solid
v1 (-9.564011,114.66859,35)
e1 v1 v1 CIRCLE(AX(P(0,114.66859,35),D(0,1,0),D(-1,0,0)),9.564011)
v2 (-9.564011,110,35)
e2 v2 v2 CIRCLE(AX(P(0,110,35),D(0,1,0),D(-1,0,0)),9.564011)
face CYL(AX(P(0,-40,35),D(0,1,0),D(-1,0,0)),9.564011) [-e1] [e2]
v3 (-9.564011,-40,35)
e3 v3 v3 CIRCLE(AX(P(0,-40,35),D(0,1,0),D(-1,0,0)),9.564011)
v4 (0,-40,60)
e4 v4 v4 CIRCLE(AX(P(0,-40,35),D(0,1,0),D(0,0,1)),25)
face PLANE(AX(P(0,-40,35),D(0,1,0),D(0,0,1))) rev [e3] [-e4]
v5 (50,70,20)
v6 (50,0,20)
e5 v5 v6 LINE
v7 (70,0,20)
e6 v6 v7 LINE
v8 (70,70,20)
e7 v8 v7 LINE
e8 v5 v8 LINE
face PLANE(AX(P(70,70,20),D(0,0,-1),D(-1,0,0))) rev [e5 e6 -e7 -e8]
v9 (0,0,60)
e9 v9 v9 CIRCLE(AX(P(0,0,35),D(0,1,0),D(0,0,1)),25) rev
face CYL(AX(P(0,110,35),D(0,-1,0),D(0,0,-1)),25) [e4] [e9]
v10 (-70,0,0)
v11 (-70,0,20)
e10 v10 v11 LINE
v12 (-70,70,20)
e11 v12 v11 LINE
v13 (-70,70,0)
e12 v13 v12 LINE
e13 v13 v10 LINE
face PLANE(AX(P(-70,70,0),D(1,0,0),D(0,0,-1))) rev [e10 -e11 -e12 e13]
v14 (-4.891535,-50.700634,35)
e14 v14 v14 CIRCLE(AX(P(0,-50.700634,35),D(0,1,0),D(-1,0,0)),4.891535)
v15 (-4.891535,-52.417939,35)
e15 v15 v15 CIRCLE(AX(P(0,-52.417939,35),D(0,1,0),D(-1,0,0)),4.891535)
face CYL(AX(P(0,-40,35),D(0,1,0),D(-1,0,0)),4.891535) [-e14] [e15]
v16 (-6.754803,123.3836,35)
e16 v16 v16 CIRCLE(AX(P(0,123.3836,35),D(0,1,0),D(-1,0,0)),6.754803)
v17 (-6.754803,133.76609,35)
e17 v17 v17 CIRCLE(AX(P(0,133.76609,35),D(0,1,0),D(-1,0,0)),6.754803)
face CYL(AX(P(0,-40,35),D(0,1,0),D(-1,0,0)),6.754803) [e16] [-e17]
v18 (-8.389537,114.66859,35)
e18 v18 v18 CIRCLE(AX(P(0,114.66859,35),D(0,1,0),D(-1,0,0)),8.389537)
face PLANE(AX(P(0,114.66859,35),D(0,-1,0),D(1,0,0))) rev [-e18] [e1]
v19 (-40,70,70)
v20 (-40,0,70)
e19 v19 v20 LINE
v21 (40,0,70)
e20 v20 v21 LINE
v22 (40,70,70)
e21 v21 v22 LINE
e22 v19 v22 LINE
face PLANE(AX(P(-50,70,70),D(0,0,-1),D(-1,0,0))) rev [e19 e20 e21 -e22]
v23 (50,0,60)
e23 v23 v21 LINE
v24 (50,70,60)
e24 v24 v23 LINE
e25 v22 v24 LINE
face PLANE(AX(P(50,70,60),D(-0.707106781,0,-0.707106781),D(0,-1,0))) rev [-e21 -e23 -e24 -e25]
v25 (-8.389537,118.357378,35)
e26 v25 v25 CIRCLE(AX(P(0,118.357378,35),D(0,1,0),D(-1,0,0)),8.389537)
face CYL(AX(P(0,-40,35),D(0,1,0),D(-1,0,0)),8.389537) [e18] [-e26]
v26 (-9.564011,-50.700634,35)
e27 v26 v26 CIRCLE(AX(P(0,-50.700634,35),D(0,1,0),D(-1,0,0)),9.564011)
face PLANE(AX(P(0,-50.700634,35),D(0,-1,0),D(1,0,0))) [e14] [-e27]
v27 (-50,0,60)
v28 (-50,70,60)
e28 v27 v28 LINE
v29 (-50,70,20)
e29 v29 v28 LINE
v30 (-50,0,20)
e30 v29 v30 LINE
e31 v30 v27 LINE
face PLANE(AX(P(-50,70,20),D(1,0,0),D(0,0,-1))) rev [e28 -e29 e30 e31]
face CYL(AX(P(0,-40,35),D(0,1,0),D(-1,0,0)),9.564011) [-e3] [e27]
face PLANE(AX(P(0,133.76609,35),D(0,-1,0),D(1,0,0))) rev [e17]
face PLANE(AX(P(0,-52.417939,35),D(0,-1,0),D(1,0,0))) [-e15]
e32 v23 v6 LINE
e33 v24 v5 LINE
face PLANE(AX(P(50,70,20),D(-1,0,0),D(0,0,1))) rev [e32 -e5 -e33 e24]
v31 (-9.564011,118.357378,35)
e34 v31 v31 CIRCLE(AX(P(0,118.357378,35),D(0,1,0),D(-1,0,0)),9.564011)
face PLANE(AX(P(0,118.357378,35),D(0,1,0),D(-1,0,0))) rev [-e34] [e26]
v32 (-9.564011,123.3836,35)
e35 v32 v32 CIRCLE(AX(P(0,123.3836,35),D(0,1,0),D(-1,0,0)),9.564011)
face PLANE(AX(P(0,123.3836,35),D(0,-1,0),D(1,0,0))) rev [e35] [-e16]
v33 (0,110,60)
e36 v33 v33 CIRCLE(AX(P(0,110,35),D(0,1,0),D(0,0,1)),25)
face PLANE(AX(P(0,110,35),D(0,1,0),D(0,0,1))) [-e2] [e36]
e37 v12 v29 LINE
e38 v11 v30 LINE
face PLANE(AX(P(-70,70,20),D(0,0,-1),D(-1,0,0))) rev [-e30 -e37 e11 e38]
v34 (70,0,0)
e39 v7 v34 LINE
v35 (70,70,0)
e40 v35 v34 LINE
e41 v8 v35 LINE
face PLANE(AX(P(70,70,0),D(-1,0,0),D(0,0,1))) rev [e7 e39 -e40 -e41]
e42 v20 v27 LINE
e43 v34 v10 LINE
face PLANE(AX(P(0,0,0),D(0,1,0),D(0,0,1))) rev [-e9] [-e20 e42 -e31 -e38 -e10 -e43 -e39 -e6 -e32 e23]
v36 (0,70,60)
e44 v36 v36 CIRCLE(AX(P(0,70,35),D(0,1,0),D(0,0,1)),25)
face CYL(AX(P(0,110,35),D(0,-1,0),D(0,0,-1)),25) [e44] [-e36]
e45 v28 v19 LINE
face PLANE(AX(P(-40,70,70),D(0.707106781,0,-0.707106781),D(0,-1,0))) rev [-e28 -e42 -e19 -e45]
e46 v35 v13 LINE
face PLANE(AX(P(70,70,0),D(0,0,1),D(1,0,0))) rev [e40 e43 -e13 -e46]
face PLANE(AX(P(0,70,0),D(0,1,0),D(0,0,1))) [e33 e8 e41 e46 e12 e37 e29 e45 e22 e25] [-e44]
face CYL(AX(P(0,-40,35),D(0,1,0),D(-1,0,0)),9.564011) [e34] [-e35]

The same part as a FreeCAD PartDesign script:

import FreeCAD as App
import Part
import Sketcher
from FreeCAD import Vector
Q = App.Units.Quantity


def edges_at(feature, points):
    """Names of the edges that pass closest to the given points."""
    edges = feature.Shape.Edges
    near = lambda p: min(range(len(edges)), key=lambda i: edges[i].distToShape(Part.Vertex(*p))[0])
    return sorted({f"Edge{near(p) + 1}" for p in points})

doc = App.newDocument("Part")
body = doc.addObject("PartDesign::Body", "Body")

# Sketch on XZ plane
sketch1 = body.newObject("Sketcher::SketchObject", "Sketch")
sketch1.AttachmentSupport = (doc.getObject("XZ_Plane"), [""])
sketch1.MapMode = "FlatFace"
sketch1.addGeometry([
    Part.LineSegment(Vector(70, 0, 0), Vector(-70, 0, 0)),  # 0
    Part.LineSegment(Vector(-70, 0, 0), Vector(-70, 20, 0)),  # 1
    Part.LineSegment(Vector(-70, 20, 0), Vector(-50, 20, 0)),  # 2
    Part.LineSegment(Vector(-50, 20, 0), Vector(-50, 70, 0)),  # 3
    Part.LineSegment(Vector(-50, 70, 0), Vector(50, 70, 0)),  # 4
    Part.LineSegment(Vector(50, 70, 0), Vector(50, 20, 0)),  # 5
    Part.LineSegment(Vector(50, 20, 0), Vector(70, 20, 0)),  # 6
    Part.LineSegment(Vector(70, 20, 0), Vector(70, 0, 0)),  # 7
    Part.Circle(Vector(0, 35, 0), Vector(0, 0, 1), 25),  # 8
], False)
sketch1.addConstraint([
    Sketcher.Constraint("Coincident", 0, 2, 1, 1),
    Sketcher.Constraint("Coincident", 1, 2, 2, 1),
    Sketcher.Constraint("Coincident", 2, 2, 3, 1),
    Sketcher.Constraint("Coincident", 3, 2, 4, 1),
    Sketcher.Constraint("Coincident", 4, 2, 5, 1),
    Sketcher.Constraint("Coincident", 5, 2, 6, 1),
    Sketcher.Constraint("Coincident", 6, 2, 7, 1),
    Sketcher.Constraint("Coincident", 7, 2, 0, 1),
    Sketcher.Constraint("Horizontal", 0),
    Sketcher.Constraint("Vertical", 1),
    Sketcher.Constraint("Horizontal", 2),
    Sketcher.Constraint("Vertical", 3),
    Sketcher.Constraint("Horizontal", 4),
    Sketcher.Constraint("Vertical", 5),
    Sketcher.Constraint("Horizontal", 6),
    Sketcher.Constraint("Vertical", 7),
    Sketcher.Constraint("Symmetric", 0, 2, 7, 2, -1, 1),
    Sketcher.Constraint("Symmetric", 2, 2, 5, 2, -2),
    Sketcher.Constraint("PointOnObject", 8, 3, -2),
    Sketcher.Constraint("Equal", 6, 1),
    Sketcher.Constraint("Diameter", 8, Q("50 mm")),
    Sketcher.Constraint("DistanceX", 0, 2, 0, 1, Q("140 mm")),
    Sketcher.Constraint("DistanceX", 2, 1, 2, 2, Q("20 mm")),
    Sketcher.Constraint("DistanceY", 3, 1, 3, 2, Q("50 mm")),
    Sketcher.Constraint("DistanceY", -1, 1, 8, 3, Q("35 mm")),
])
pad1 = body.newObject("PartDesign::Pad", "Pad")
pad1.Profile = sketch1
pad1.Length = 70
pad1.Reversed = True

# Sketch on XZ plane
sketch2 = body.newObject("Sketcher::SketchObject", "Sketch001")
sketch2.AttachmentSupport = (doc.getObject("XZ_Plane"), [""])
sketch2.MapMode = "FlatFace"
sketch2.AttachmentOffset = App.Placement(Vector(0, 0, -35), App.Rotation())
sketch2.addGeometry(Part.Circle(Vector(0, 35, 0), Vector(0, 0, 1), 25), False)
sketch2.addConstraint([
    Sketcher.Constraint("PointOnObject", 0, 3, -2),
    Sketcher.Constraint("Diameter", 0, Q("50 mm")),
    Sketcher.Constraint("DistanceY", -1, 1, 0, 3, Q("35 mm")),
])
pad2 = body.newObject("PartDesign::Pad", "Pad001")
pad2.Profile = sketch2
pad2.Length = 150
pad2.Midplane = True

# Sketch on XY plane
sketch3 = body.newObject("Sketcher::SketchObject", "Sketch002")
sketch3.AttachmentSupport = (doc.getObject("XY_Plane"), [""])
sketch3.MapMode = "FlatFace"
sketch3.AttachmentOffset = App.Placement(Vector(0, 0, 35), App.Rotation())
sketch3.addGeometry([
    Part.LineSegment(Vector(-9.564011, 110, 0), Vector(0, 110, 0)),  # 0
    Part.LineSegment(Vector(0, 110, 0), Vector(0, 133.76609, 0)),  # 1
    Part.LineSegment(Vector(0, 133.76609, 0), Vector(-6.754803, 133.76609, 0)),  # 2
    Part.LineSegment(Vector(-6.754803, 133.76609, 0), Vector(-6.754803, 123.3836, 0)),  # 3
    Part.LineSegment(Vector(-6.754803, 123.3836, 0), Vector(-9.564011, 123.3836, 0)),  # 4
    Part.LineSegment(Vector(-9.564011, 123.3836, 0), Vector(-9.564011, 118.357378, 0)),  # 5
    Part.LineSegment(Vector(-9.564011, 118.357378, 0), Vector(-8.389537, 118.357378, 0)),  # 6
    Part.LineSegment(Vector(-8.389537, 118.357378, 0), Vector(-8.389537, 114.66859, 0)),  # 7
    Part.LineSegment(Vector(-8.389537, 114.66859, 0), Vector(-9.564011, 114.66859, 0)),  # 8
    Part.LineSegment(Vector(-9.564011, 114.66859, 0), Vector(-9.564011, 110, 0)),  # 9
    Part.LineSegment(Vector(0, -40, 0), Vector(-9.564011, -40, 0)),  # 10
    Part.LineSegment(Vector(-9.564011, -40, 0), Vector(-9.564011, -50.700634, 0)),  # 11
    Part.LineSegment(Vector(-9.564011, -50.700634, 0), Vector(-4.891535, -50.700634, 0)),  # 12
    Part.LineSegment(Vector(-4.891535, -50.700634, 0), Vector(-4.891535, -52.417939, 0)),  # 13
    Part.LineSegment(Vector(-4.891535, -52.417939, 0), Vector(0, -52.417939, 0)),  # 14
    Part.LineSegment(Vector(0, -52.417939, 0), Vector(0, -40, 0)),  # 15
], False)
sketch3.addConstraint([
    Sketcher.Constraint("Coincident", 0, 2, 1, 1),
    Sketcher.Constraint("Coincident", 1, 2, 2, 1),
    Sketcher.Constraint("Coincident", 2, 2, 3, 1),
    Sketcher.Constraint("Coincident", 3, 2, 4, 1),
    Sketcher.Constraint("Coincident", 4, 2, 5, 1),
    Sketcher.Constraint("Coincident", 5, 2, 6, 1),
    Sketcher.Constraint("Coincident", 6, 2, 7, 1),
    Sketcher.Constraint("Coincident", 7, 2, 8, 1),
    Sketcher.Constraint("Coincident", 8, 2, 9, 1),
    Sketcher.Constraint("Coincident", 9, 2, 0, 1),
    Sketcher.Constraint("Coincident", 10, 2, 11, 1),
    Sketcher.Constraint("Coincident", 11, 2, 12, 1),
    Sketcher.Constraint("Coincident", 12, 2, 13, 1),
    Sketcher.Constraint("Coincident", 13, 2, 14, 1),
    Sketcher.Constraint("Coincident", 14, 2, 15, 1),
    Sketcher.Constraint("Coincident", 15, 2, 10, 1),
    Sketcher.Constraint("Horizontal", 0),
    Sketcher.Constraint("Vertical", 1),
    Sketcher.Constraint("Horizontal", 2),
    Sketcher.Constraint("Vertical", 3),
    Sketcher.Constraint("Horizontal", 4),
    Sketcher.Constraint("Vertical", 5),
    Sketcher.Constraint("Horizontal", 6),
    Sketcher.Constraint("Vertical", 7),
    Sketcher.Constraint("Horizontal", 8),
    Sketcher.Constraint("Vertical", 9),
    Sketcher.Constraint("Horizontal", 10),
    Sketcher.Constraint("Vertical", 11),
    Sketcher.Constraint("Horizontal", 12),
    Sketcher.Constraint("Vertical", 13),
    Sketcher.Constraint("Horizontal", 14),
    Sketcher.Constraint("Vertical", 15),
    Sketcher.Constraint("PointOnObject", 0, 2, -2),
    Sketcher.Constraint("PointOnObject", 14, 2, -2),
    Sketcher.Constraint("Vertical", 5, 2, 8, 2),
    Sketcher.Constraint("Vertical", 9, 2, 10, 2),
    Sketcher.Constraint("DistanceY", -1, 1, 0, 2, Q("110 mm")),
    Sketcher.Constraint("DistanceY", 10, 2, -1, 1, Q("40 mm")),
    Sketcher.Constraint("DistanceX", 0, 1, 0, 2, Q("9.564011 mm")),
    Sketcher.Constraint("DistanceY", 1, 1, 1, 2, Q("23.76609 mm")),
    Sketcher.Constraint("DistanceY", 3, 2, 3, 1, Q("10.38249 mm")),
    Sketcher.Constraint("DistanceY", 9, 2, 9, 1, Q("4.66859 mm")),
    Sketcher.Constraint("DistanceY", 15, 1, 15, 2, Q("12.417939 mm")),
    Sketcher.Constraint("DistanceX", 2, 2, 2, 1, Q("6.754803 mm")),
    Sketcher.Constraint("DistanceX", 6, 1, 6, 2, Q("1.174474 mm")),
    Sketcher.Constraint("DistanceX", 12, 1, 12, 2, Q("4.672477 mm")),
    Sketcher.Constraint("DistanceY", 5, 2, 5, 1, Q("5.026222 mm")),
    Sketcher.Constraint("DistanceY", 11, 2, 11, 1, Q("10.700634 mm")),
])
revolution = body.newObject("PartDesign::Revolution", "Revolution")
revolution.Profile = sketch3
revolution.ReferenceAxis = (sketch3, ["V_Axis"])
revolution.Angle = 360
doc.recompute()

chamfer = body.newObject("PartDesign::Chamfer", "Chamfer")
chamfer.Base = (revolution, edges_at(revolution, [(50, 35, 70), (-50, 35, 70)]))
chamfer.Size = 10

doc.recompute()
